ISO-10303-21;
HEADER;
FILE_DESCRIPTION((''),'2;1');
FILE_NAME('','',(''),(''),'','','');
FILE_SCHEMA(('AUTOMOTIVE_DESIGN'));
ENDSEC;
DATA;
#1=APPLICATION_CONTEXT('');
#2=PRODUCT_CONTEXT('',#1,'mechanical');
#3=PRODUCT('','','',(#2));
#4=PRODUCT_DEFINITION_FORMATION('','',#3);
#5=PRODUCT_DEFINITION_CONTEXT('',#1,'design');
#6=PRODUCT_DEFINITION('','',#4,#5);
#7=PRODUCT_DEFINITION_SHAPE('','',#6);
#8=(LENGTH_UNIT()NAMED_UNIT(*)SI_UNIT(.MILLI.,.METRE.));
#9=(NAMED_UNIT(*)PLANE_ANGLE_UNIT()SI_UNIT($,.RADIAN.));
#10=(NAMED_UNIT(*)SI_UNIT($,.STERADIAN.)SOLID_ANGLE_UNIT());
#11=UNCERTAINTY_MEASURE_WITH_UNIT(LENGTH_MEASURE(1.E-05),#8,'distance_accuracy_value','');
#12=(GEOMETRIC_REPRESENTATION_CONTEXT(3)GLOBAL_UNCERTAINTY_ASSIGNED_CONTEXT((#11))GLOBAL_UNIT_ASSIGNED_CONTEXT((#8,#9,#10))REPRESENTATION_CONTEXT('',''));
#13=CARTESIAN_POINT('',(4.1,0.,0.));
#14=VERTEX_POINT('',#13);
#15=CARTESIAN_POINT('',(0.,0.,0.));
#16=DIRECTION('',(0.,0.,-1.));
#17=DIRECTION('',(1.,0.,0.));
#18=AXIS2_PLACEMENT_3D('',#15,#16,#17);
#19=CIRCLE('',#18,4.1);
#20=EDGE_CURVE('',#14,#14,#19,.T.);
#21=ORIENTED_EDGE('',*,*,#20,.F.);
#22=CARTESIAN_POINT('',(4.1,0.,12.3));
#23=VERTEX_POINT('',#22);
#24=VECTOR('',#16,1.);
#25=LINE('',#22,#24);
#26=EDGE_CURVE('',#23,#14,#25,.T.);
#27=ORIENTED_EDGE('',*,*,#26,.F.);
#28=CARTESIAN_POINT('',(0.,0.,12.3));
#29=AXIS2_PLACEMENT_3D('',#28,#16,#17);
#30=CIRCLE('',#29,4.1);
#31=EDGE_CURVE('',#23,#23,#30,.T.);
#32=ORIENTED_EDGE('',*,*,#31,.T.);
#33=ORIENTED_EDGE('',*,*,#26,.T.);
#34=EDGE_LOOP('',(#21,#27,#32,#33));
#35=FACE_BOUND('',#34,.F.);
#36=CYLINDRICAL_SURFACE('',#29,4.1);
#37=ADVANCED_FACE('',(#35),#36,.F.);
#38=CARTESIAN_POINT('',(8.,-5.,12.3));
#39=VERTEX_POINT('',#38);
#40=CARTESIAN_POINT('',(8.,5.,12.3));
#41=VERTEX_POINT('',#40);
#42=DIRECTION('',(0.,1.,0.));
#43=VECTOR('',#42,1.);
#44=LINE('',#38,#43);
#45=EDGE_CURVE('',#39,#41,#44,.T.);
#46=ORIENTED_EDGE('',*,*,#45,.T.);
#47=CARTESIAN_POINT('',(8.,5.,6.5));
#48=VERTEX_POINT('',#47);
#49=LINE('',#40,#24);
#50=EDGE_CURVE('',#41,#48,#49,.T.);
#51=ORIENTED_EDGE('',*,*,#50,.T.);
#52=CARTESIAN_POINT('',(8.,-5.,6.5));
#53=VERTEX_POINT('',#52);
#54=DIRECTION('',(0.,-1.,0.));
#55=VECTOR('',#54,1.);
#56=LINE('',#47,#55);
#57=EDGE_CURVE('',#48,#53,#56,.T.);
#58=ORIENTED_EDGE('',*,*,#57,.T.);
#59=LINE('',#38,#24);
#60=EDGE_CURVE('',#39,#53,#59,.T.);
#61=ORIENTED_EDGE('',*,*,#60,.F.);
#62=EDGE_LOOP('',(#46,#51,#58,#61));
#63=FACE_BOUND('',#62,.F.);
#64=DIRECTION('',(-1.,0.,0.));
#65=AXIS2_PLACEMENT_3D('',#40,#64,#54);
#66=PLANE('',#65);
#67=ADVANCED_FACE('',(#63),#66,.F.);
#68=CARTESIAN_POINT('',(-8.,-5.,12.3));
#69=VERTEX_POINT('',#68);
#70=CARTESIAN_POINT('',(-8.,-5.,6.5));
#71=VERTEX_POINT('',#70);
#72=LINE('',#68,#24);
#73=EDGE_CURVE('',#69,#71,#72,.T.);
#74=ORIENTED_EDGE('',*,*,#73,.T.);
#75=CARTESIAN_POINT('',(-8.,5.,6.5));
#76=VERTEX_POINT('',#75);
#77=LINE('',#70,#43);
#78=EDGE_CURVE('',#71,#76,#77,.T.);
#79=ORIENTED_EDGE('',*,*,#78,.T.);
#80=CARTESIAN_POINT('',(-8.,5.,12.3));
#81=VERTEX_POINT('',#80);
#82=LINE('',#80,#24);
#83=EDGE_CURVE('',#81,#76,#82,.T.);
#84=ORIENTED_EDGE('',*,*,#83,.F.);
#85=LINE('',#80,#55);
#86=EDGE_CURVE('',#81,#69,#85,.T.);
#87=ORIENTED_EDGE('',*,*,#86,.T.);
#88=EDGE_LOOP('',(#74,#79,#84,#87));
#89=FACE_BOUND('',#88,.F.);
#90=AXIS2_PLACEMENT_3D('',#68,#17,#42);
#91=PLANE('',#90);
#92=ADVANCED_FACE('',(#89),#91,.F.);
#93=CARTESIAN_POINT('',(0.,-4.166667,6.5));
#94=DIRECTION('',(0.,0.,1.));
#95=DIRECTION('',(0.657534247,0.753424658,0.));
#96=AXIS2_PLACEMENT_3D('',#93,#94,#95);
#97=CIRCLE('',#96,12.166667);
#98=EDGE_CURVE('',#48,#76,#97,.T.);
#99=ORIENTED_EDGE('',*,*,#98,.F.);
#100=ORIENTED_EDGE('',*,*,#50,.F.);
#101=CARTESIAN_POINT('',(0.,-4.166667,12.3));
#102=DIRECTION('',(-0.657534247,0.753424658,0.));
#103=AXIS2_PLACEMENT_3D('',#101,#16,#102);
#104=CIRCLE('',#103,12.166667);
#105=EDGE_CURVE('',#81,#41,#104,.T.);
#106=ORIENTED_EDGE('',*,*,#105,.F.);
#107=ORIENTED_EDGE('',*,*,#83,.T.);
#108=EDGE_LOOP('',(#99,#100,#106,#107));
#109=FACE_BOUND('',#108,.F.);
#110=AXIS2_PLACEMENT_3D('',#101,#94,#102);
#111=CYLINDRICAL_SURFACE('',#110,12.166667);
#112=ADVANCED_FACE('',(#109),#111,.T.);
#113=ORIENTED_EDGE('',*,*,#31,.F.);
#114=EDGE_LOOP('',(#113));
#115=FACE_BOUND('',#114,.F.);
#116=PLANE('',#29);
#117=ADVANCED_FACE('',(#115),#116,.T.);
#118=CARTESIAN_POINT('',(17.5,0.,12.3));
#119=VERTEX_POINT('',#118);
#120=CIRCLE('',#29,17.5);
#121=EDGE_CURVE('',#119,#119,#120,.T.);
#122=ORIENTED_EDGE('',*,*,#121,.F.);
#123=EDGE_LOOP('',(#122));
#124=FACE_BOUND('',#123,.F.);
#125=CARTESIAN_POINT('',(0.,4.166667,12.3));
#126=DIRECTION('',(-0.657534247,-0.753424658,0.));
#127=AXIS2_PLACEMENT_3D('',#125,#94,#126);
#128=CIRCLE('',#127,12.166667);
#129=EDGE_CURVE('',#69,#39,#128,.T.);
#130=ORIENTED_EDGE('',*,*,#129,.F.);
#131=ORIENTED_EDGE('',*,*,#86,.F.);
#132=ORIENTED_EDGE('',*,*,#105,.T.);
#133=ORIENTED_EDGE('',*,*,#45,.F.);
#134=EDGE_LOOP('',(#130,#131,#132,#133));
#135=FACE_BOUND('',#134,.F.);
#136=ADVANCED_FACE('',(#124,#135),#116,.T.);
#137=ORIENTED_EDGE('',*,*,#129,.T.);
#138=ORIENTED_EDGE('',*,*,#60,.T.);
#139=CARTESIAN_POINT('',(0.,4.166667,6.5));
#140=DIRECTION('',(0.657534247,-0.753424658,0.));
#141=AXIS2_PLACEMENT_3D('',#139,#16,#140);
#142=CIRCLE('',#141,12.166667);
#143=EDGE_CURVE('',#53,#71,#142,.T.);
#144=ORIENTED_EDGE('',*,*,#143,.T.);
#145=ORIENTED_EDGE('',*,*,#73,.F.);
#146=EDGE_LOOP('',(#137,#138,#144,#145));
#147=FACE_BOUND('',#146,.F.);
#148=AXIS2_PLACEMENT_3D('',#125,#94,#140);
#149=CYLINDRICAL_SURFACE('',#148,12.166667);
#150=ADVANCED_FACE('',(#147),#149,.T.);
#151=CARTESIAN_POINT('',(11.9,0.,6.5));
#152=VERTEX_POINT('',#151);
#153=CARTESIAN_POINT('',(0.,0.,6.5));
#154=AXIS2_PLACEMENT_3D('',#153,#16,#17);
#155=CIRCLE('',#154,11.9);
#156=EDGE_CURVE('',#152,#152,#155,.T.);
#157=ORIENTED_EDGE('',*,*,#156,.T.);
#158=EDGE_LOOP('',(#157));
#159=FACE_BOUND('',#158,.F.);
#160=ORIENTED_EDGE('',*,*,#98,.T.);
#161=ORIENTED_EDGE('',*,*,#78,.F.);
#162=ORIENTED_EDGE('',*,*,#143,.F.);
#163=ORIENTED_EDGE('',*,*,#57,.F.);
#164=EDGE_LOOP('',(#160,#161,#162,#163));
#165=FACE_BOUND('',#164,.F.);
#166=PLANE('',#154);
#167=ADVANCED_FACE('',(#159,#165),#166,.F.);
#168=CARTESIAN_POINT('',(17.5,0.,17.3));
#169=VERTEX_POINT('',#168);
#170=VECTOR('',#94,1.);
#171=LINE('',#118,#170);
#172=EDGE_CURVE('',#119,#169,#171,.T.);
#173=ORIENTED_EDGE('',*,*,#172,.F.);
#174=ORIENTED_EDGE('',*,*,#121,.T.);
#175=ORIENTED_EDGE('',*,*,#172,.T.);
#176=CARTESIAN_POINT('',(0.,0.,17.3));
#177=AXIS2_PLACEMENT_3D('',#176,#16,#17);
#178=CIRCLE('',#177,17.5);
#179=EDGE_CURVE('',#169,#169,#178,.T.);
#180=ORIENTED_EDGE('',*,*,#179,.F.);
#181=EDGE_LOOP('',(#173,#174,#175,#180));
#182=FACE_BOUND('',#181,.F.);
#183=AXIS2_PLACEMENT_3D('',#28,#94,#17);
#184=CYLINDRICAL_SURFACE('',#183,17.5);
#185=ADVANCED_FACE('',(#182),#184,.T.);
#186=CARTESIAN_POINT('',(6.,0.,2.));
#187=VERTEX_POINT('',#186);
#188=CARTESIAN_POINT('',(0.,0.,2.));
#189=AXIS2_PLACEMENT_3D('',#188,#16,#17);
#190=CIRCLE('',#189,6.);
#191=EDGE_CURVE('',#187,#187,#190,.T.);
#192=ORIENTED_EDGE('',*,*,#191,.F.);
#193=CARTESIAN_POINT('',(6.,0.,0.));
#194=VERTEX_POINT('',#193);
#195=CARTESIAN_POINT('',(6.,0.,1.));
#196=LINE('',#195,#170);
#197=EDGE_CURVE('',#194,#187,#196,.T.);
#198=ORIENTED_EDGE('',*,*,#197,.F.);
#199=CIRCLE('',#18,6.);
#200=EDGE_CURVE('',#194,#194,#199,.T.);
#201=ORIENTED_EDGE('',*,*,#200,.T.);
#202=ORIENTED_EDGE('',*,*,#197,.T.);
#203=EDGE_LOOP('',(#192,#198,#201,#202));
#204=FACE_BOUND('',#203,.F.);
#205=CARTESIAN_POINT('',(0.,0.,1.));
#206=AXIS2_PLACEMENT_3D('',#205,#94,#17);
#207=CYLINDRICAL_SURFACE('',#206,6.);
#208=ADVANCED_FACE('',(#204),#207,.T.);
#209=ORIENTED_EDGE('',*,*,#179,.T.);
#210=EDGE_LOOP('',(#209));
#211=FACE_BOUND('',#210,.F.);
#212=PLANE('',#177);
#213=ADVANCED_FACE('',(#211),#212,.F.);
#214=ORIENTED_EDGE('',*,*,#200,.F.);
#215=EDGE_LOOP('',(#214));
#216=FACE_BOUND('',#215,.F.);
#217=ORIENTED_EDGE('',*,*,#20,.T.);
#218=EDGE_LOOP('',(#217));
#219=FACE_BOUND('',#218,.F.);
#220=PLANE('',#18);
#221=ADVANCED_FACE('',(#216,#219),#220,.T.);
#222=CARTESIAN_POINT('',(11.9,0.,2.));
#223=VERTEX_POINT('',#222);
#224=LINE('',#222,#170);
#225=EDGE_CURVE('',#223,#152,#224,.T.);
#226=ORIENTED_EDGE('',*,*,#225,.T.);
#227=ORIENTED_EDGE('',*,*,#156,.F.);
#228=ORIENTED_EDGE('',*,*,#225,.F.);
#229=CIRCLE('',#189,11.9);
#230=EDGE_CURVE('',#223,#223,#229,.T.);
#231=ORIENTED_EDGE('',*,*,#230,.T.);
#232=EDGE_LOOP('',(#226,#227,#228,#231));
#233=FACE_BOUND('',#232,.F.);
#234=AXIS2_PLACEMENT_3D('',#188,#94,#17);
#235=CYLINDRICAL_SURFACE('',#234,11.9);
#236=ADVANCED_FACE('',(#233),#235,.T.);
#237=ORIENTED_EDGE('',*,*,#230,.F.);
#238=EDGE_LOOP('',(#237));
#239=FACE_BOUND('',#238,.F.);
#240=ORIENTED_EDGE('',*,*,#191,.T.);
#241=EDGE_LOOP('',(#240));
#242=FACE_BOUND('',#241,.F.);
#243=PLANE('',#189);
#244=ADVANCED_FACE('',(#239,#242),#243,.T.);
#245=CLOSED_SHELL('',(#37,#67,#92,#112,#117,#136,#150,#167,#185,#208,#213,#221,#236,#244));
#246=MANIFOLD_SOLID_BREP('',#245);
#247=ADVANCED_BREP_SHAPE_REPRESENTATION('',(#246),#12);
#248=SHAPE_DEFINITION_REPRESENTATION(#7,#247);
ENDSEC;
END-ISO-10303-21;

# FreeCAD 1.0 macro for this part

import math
import FreeCAD as App
import Part
import Sketcher

V = App.Vector

doc = App.newDocument("Part")
body = doc.addObject("PartDesign::Body", "Body")

# Sketch on XZ plane
sketch1 = body.newObject("Sketcher::SketchObject", "Sketch")
sketch1.AttachmentSupport = (doc.getObject("XZ_Plane"), [""])
sketch1.MapMode = "FlatFace"
sketch1.addGeometry(Part.LineSegment(V(17.5, 17.3, 0), V(0, 17.3, 0)), False)
sketch1.addGeometry(Part.LineSegment(V(0, 17.3, 0), V(0, 12.3, 0)), False)
sketch1.addGeometry(Part.LineSegment(V(0, 12.3, 0), V(4.1, 12.3, 0)), False)
sketch1.addGeometry(Part.LineSegment(V(4.1, 12.3, 0), V(4.1, 0, 0)), False)
sketch1.addGeometry(Part.LineSegment(V(4.1, 0, 0), V(6, 0, 0)), False)
sketch1.addGeometry(Part.LineSegment(V(6, 0, 0), V(6, 2, 0)), False)
sketch1.addGeometry(Part.LineSegment(V(6, 2, 0), V(11.9, 2, 0)), False)
sketch1.addGeometry(Part.LineSegment(V(11.9, 2, 0), V(11.9, 6.5, 0)), False)
sketch1.addGeometry(Part.LineSegment(V(11.9, 6.5, 0), V(8, 6.5, 0)), False)
sketch1.addGeometry(Part.LineSegment(V(8, 6.5, 0), V(8, 12.3, 0)), False)
sketch1.addGeometry(Part.LineSegment(V(8, 12.3, 0), V(17.5, 12.3, 0)), False)
sketch1.addGeometry(Part.LineSegment(V(17.5, 12.3, 0), V(17.5, 17.3, 0)), False)
sketch1.addConstraint(Sketcher.Constraint("Coincident", 0, 2, 1, 1))
sketch1.addConstraint(Sketcher.Constraint("Coincident", 1, 2, 2, 1))
sketch1.addConstraint(Sketcher.Constraint("Coincident", 2, 2, 3, 1))
sketch1.addConstraint(Sketcher.Constraint("Coincident", 3, 2, 4, 1))
sketch1.addConstraint(Sketcher.Constraint("Coincident", 4, 2, 5, 1))
sketch1.addConstraint(Sketcher.Constraint("Coincident", 5, 2, 6, 1))
sketch1.addConstraint(Sketcher.Constraint("Coincident", 6, 2, 7, 1))
sketch1.addConstraint(Sketcher.Constraint("Coincident", 7, 2, 8, 1))
sketch1.addConstraint(Sketcher.Constraint("Coincident", 8, 2, 9, 1))
sketch1.addConstraint(Sketcher.Constraint("Coincident", 9, 2, 10, 1))
sketch1.addConstraint(Sketcher.Constraint("Coincident", 10, 2, 11, 1))
sketch1.addConstraint(Sketcher.Constraint("Coincident", 11, 2, 0, 1))
sketch1.addConstraint(Sketcher.Constraint("Horizontal", 0))
sketch1.addConstraint(Sketcher.Constraint("Vertical", 1))
sketch1.addConstraint(Sketcher.Constraint("Horizontal", 2))
sketch1.addConstraint(Sketcher.Constraint("Vertical", 3))
sketch1.addConstraint(Sketcher.Constraint("Horizontal", 4))
sketch1.addConstraint(Sketcher.Constraint("Vertical", 5))
sketch1.addConstraint(Sketcher.Constraint("Horizontal", 6))
sketch1.addConstraint(Sketcher.Constraint("Vertical", 7))
sketch1.addConstraint(Sketcher.Constraint("Horizontal", 8))
sketch1.addConstraint(Sketcher.Constraint("Vertical", 9))
sketch1.addConstraint(Sketcher.Constraint("Horizontal", 10))
sketch1.addConstraint(Sketcher.Constraint("Vertical", 11))
sketch1.addConstraint(Sketcher.Constraint("PointOnObject", 0, 2, -2))
sketch1.addConstraint(Sketcher.Constraint("PointOnObject", 3, 2, -1))
sketch1.addConstraint(Sketcher.Constraint("Horizontal", 2, 2, 9, 2))
sketch1.addConstraint(Sketcher.Constraint("DistanceY", 1, 2, 1, 1, 5.0))
sketch1.addConstraint(Sketcher.Constraint("DistanceY", 5, 1, 5, 2, 2.0))
sketch1.addConstraint(Sketcher.Constraint("DistanceX", 0, 2, 0, 1, 17.5))
sketch1.addConstraint(Sketcher.Constraint("DistanceX", 2, 1, 2, 2, 4.1))
sketch1.addConstraint(Sketcher.Constraint("DistanceX", 4, 1, 4, 2, 1.9))
sketch1.addConstraint(Sketcher.Constraint("DistanceX", 6, 1, 6, 2, 5.9))
sketch1.addConstraint(Sketcher.Constraint("DistanceX", 8, 2, 8, 1, 3.9))
sketch1.addConstraint(Sketcher.Constraint("DistanceY", 3, 2, 3, 1, 12.3))
sketch1.addConstraint(Sketcher.Constraint("DistanceY", 7, 1, 7, 2, 4.5))
revolution = body.newObject("PartDesign::Revolution", "Revolution")
revolution.Profile = sketch1
revolution.ReferenceAxis = (sketch1, ["V_Axis"])
revolution.Angle = 360

# Sketch on XY plane
sketch2 = body.newObject("Sketcher::SketchObject", "Sketch001")
sketch2.AttachmentSupport = (doc.getObject("XY_Plane"), [""])
sketch2.MapMode = "FlatFace"
sketch2.AttachmentOffset = App.Placement(V(0, 0, 12.3), App.Rotation())
sketch2.addGeometry(Part.ArcOfCircle(Part.Circle(V(0, -4.2, 0), V(0, 0, 1), 12.2), math.radians(49), math.radians(131)), False)
sketch2.addGeometry(Part.LineSegment(V(8, 5, 0), V(8, -5, 0)), False)
sketch2.addGeometry(Part.ArcOfCircle(Part.Circle(V(0, 4.2, 0), V(0, 0, 1), 12.2), math.radians(-131), math.radians(-49)), False)
sketch2.addGeometry(Part.LineSegment(V(-8, -5, 0), V(-8, 5, 0)), False)
sketch2.addGeometry(Part.Circle(V(0, 0, 0), V(0, 0, 1), 4.2), False)
sketch2.addConstraint(Sketcher.Constraint("Coincident", 0, 1, 1, 1))
sketch2.addConstraint(Sketcher.Constraint("Coincident", 1, 2, 2, 2))
sketch2.addConstraint(Sketcher.Constraint("Coincident", 2, 1, 3, 1))
sketch2.addConstraint(Sketcher.Constraint("Coincident", 3, 2, 0, 2))
sketch2.addConstraint(Sketcher.Constraint("Vertical", 1))
sketch2.addConstraint(Sketcher.Constraint("Vertical", 3))
sketch2.addConstraint(Sketcher.Constraint("Coincident", 4, 3, -1, 1))
sketch2.addConstraint(Sketcher.Constraint("Equal", 0, 2))
sketch2.addConstraint(Sketcher.Constraint("Symmetric", 0, 3, 2, 3, -1, 1))
sketch2.addConstraint(Sketcher.Constraint("Symmetric", 1, 2, 2, 1, -2))
sketch2.addConstraint(Sketcher.Constraint("DistanceY", 1, 2, 1, 1, 10.0))
sketch2.addConstraint(Sketcher.Constraint("DistanceX", -1, 1, 0, 1, 8.0))
sketch2.addConstraint(Sketcher.Constraint("Diameter", 4, 8.333334))
sketch2.addConstraint(Sketcher.Constraint("Radius", 0, 12.166667))
pad1 = body.newObject("PartDesign::Pad", "Pad")
pad1.Profile = sketch2
pad1.Length = 6
pad1.Reversed = True

doc.recompute()
